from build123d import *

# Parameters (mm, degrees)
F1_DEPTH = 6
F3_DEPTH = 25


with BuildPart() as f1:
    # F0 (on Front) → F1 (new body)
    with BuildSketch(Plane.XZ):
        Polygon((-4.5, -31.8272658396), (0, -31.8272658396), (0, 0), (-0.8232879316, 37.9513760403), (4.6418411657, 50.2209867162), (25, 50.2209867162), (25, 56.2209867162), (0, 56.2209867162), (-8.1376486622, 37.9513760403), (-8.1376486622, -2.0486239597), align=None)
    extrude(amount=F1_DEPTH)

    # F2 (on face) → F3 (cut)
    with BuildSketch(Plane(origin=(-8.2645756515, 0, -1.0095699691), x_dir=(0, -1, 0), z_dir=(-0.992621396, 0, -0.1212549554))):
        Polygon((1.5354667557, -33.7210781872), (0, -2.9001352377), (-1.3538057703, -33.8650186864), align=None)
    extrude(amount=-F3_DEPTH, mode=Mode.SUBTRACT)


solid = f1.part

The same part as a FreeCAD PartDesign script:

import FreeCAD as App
import Part
import Sketcher

V = App.Vector
Q = App.Units.Quantity

doc = App.newDocument("Part")
params = doc.addObject("Spreadsheet::Sheet", "Params")
for row, (alias, value) in enumerate([
    ("sketch1_width", "25 mm"),
    ("sketch1_height", "6 mm"),
    ("sketch1_height2", "40 mm"),
    ("sketch1_length", "20 mm"),
    ("sketch1_length2", "30 mm"),
    ("pad1_length", "6 mm"),
    ("pocket1_length", "25 mm"),
], start=1):
    params.set(f"A{row}", alias)
    params.set(f"B{row}", "=" + value)
    params.setAlias(f"B{row}", alias)

body = doc.addObject("PartDesign::Body", "Body")

# Sketch on XZ plane
sketch1 = doc.addObject("Sketcher::SketchObject", "Sketch")
body.addObject(sketch1)
sketch1.AttachmentSupport = (doc.XZ_Plane, [""])
sketch1.MapMode = "FlatFace"
sketch1.addGeometry([
    Part.LineSegment(V(-4.5, -31.8, 0), V(0, -31.8, 0)),  # 0
    Part.LineSegment(V(0, -31.8, 0), V(0, 0, 0)),  # 1
    Part.LineSegment(V(0, 0, 0), V(-0.8, 38, 0)),  # 2
    Part.LineSegment(V(-0.8, 38, 0), V(4.6, 50.2, 0)),  # 3
    Part.LineSegment(V(4.6, 50.2, 0), V(25, 50.2, 0)),  # 4
    Part.LineSegment(V(25, 50.2, 0), V(25, 56.2, 0)),  # 5
    Part.LineSegment(V(25, 56.2, 0), V(0, 56.2, 0)),  # 6
    Part.LineSegment(V(0, 56.2, 0), V(-8.1, 38, 0)),  # 7
    Part.LineSegment(V(-8.1, 38, 0), V(-8.1, -2, 0)),  # 8
    Part.LineSegment(V(-8.1, -2, 0), V(-4.5, -31.8, 0)),  # 9
], False)
sketch1.addConstraint([
    Sketcher.Constraint("Coincident", 0, 2, 1, 1),
    Sketcher.Constraint("Coincident", 1, 2, 2, 1),
    Sketcher.Constraint("Coincident", 2, 2, 3, 1),
    Sketcher.Constraint("Coincident", 3, 2, 4, 1),
    Sketcher.Constraint("Coincident", 4, 2, 5, 1),
    Sketcher.Constraint("Coincident", 5, 2, 6, 1),
    Sketcher.Constraint("Coincident", 6, 2, 7, 1),
    Sketcher.Constraint("Coincident", 7, 2, 8, 1),
    Sketcher.Constraint("Coincident", 8, 2, 9, 1),
    Sketcher.Constraint("Coincident", 9, 2, 0, 1),
    Sketcher.Constraint("Horizontal", 0),
    Sketcher.Constraint("Vertical", 1),
    Sketcher.Constraint("Horizontal", 4),
    Sketcher.Constraint("Vertical", 5),
    Sketcher.Constraint("Horizontal", 6),
    Sketcher.Constraint("Vertical", 8),
    Sketcher.Constraint("Coincident", 1, 2, -1, 1),
    Sketcher.Constraint("PointOnObject", 6, 2, -2),
    Sketcher.Constraint("Parallel", 3, 7),
    Sketcher.Constraint("Horizontal", 2, 2, 7, 2),
    Sketcher.Constraint("DistanceX", 6, 2, 6, 1, Q("25 mm")),
    Sketcher.Constraint("DistanceY", 5, 1, 5, 2, Q("6 mm")),
    Sketcher.Constraint("DistanceY", 8, 2, 8, 1, Q("40 mm")),
    Sketcher.Constraint("Distance", 7, Q("20 mm")),
    Sketcher.Constraint("Distance", 9, Q("30 mm")),
    Sketcher.Constraint("DistanceX", 0, 1, 0, 2, Q("4.5 mm")),
    Sketcher.Constraint("DistanceX", 4, 1, 4, 2, Q("20.358159 mm")),
    Sketcher.Constraint("DistanceY", 1, 1, 1, 2, Q("31.827266 mm")),
    Sketcher.Constraint("DistanceX", 7, 2, -1, 1, Q("8.137649 mm")),
])
sketch1.setExpression("Constraints[20]", "Params.sketch1_width")
sketch1.setExpression("Constraints[21]", "Params.sketch1_height")
sketch1.setExpression("Constraints[22]", "Params.sketch1_height2")
sketch1.setExpression("Constraints[23]", "Params.sketch1_length")
sketch1.setExpression("Constraints[24]", "Params.sketch1_length2")
pad1 = doc.addObject("PartDesign::Pad", "Pad")
body.addObject(pad1)
pad1.Profile = sketch1
pad1.setExpression("Length", "Params.pad1_length")

# Sketch on an angled plane
sketch2 = doc.addObject("Sketcher::SketchObject", "Sketch001")
body.addObject(sketch2)
sketch2.Placement = App.Placement(V(-8.264576, 0, -1.00957), App.Rotation(V(0, -1, 0), V(-0.121254955, 0, 0.992621396), V(-0.992621396, 0, -0.121254955), "ZXY"))
sketch2.addGeometry([
    Part.LineSegment(V(1.5, -33.7, 0), V(0, -2.9, 0)),
    Part.LineSegment(V(0, -2.9, 0), V(-1.4, -33.9, 0)),
    Part.LineSegment(V(-1.4, -33.9, 0), V(1.5, -33.7, 0)),
], False)
sketch2.addConstraint([
    Sketcher.Constraint("Coincident", 0, 2, 1, 1),
    Sketcher.Constraint("Coincident", 1, 2, 2, 1),
    Sketcher.Constraint("Coincident", 2, 2, 0, 1),
    Sketcher.Constraint("PointOnObject", 0, 2, -2),
    Sketcher.Constraint("Perpendicular", 0, 2),
    Sketcher.Constraint("DistanceY", 1, 2, -1, 1, Q("33.865019 mm")),
    Sketcher.Constraint("DistanceY", 2, 2, -1, 1, Q("33.721078 mm")),
    Sketcher.Constraint("Distance", 0, Q("30.859167 mm")),
    Sketcher.Constraint("Distance", 1, Q("30.994464 mm")),
])
pocket1 = doc.addObject("PartDesign::Pocket", "Pocket")
body.addObject(pocket1)
pocket1.Profile = sketch2
pocket1.setExpression("Length", "Params.pocket1_length")

doc.recompute()
